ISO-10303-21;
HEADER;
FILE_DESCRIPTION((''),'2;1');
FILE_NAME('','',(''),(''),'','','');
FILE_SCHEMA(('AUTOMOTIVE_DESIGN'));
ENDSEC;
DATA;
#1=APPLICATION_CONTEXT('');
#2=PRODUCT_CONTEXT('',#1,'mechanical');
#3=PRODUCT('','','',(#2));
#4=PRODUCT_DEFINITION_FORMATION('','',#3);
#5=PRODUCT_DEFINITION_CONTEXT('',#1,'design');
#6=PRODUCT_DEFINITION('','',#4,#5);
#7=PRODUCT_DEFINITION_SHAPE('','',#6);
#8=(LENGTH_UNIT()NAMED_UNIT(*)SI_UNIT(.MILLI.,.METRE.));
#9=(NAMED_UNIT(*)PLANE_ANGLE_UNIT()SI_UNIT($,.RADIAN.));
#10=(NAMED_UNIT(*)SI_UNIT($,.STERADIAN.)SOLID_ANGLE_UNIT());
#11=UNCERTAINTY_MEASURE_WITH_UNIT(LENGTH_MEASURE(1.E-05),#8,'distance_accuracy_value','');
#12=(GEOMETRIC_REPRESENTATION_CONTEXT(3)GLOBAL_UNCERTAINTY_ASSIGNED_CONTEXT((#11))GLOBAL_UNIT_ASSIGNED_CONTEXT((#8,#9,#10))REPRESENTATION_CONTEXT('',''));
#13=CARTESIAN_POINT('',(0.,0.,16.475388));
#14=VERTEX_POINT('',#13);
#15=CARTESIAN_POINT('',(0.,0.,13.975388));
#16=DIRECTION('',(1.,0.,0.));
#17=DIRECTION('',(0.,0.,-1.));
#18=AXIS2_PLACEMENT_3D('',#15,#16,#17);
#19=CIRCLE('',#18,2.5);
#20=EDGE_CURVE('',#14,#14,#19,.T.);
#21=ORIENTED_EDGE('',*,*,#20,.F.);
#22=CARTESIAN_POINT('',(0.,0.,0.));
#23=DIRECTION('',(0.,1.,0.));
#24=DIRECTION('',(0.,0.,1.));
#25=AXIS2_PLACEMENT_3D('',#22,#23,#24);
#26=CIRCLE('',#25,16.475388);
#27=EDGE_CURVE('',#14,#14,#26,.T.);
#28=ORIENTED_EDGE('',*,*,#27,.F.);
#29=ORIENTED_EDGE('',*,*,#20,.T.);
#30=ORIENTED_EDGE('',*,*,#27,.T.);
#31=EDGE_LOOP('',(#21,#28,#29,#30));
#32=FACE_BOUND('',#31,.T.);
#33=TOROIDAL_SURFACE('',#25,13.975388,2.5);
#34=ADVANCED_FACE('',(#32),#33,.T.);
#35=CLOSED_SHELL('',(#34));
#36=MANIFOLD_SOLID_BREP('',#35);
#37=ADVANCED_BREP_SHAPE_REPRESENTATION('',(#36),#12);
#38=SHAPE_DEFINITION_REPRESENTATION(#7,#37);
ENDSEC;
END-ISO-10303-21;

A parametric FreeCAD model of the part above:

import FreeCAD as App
import Part
import Sketcher

V = App.Vector

doc = App.newDocument("Part")
params = doc.addObject("Spreadsheet::Sheet", "Params")
for row, (alias, value) in enumerate([
    ("sketch1_diameter", "5 mm"),
], start=1):
    params.set(f"A{row}", alias)
    params.set(f"B{row}", "=" + value)
    params.setAlias(f"B{row}", alias)

body = doc.addObject("PartDesign::Body", "Body")

sketch1 = body.newObject("Sketcher::SketchObject", "Sketch")
sketch1.AttachmentSupport = (doc.getObject("YZ_Plane"), [""])
sketch1.MapMode = "FlatFace"
sketch1.addGeometry(Part.Circle(V(0, 13.975388, 0), V(0, 0, 1), 2.5), False)
sketch1.addConstraint([
    Sketcher.Constraint("PointOnObject", 0, 3, -2),
    Sketcher.Constraint("Diameter", 0, 5.0),
    Sketcher.Constraint("DistanceY", -1, 1, 0, 3, 13.975388),
])
sketch1.setExpression("Constraints[1]", "Params.sketch1_diameter")

sketch2 = body.newObject("Sketcher::SketchObject", "Sketch001")
sketch2.AttachmentSupport = (doc.getObject("XZ_Plane"), [""])
sketch2.MapMode = "FlatFace"
sketch2.addGeometry(Part.Circle(V(0, 0, 0), V(0, 0, 1), 13.975388), False)
sketch2.addConstraint([
    Sketcher.Constraint("Coincident", 0, 3, -1, 1),
    Sketcher.Constraint("Diameter", 0, 27.950777),
])
doc.recompute()

additivepipe = body.newObject("PartDesign::AdditivePipe", "AdditivePipe")
additivepipe.Profile = sketch1
additivepipe.Spine = (sketch2, ["Edge1"])

doc.recompute()
